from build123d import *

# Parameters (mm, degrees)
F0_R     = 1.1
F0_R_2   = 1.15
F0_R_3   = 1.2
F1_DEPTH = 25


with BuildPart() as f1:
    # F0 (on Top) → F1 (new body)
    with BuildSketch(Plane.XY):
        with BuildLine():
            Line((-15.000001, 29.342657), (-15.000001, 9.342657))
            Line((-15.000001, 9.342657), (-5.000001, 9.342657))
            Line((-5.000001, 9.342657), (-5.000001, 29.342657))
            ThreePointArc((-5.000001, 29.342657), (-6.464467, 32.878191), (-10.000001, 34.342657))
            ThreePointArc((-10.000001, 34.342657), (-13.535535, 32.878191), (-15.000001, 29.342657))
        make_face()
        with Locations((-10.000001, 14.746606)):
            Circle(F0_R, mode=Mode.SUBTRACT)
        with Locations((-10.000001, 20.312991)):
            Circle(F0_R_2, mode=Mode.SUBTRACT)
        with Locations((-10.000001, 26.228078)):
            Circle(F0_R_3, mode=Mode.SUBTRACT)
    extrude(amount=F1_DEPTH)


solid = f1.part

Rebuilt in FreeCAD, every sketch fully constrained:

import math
import FreeCAD as App
import Part
import Sketcher

doc = App.newDocument("Part")
body = doc.addObject("PartDesign::Body", "Body")

sketch1 = body.newObject("Sketcher::SketchObject", "Sketch")
sketch1.AttachmentSupport = (doc.getObject("XY_Plane"), [""])
sketch1.MapMode = "FlatFace"
sketch1.addGeometry(Part.LineSegment(App.Vector(-15.000001, 29.342657, 0), App.Vector(-15.000001, 9.342657, 0)), False)
sketch1.addGeometry(Part.LineSegment(App.Vector(-15.000001, 9.342657, 0), App.Vector(-5.000001, 9.342657, 0)), False)
sketch1.addGeometry(Part.LineSegment(App.Vector(-5.000001, 9.342657, 0), App.Vector(-5.000001, 29.342657, 0)), False)
sketch1.addGeometry(Part.ArcOfCircle(Part.Circle(App.Vector(-10.000001, 29.342657, 0), App.Vector(0, 0, 1), 5), math.radians(-0.000004), math.radians(90.000004)), False)
sketch1.addGeometry(Part.ArcOfCircle(Part.Circle(App.Vector(-10.000001, 29.342657, 0), App.Vector(0, 0, 1), 5), math.radians(89.999996), math.radians(180.000004)), False)
sketch1.addGeometry(Part.Circle(App.Vector(-10.000001, 14.746606, 0), App.Vector(0, 0, 1), 1.1), False)
sketch1.addGeometry(Part.Circle(App.Vector(-10.000001, 20.312991, 0), App.Vector(0, 0, 1), 1.15), False)
sketch1.addGeometry(Part.Circle(App.Vector(-10.000001, 26.228078, 0), App.Vector(0, 0, 1), 1.2), False)
sketch1.addConstraint(Sketcher.Constraint("Coincident", 0, 2, 1, 1))
sketch1.addConstraint(Sketcher.Constraint("Coincident", 1, 2, 2, 1))
sketch1.addConstraint(Sketcher.Constraint("Tangent", 2, 2, 3, 1))
sketch1.addConstraint(Sketcher.Constraint("Tangent", 3, 2, 4, 1))
sketch1.addConstraint(Sketcher.Constraint("Tangent", 4, 2, 0, 1))
sketch1.addConstraint(Sketcher.Constraint("Vertical", 0))
sketch1.addConstraint(Sketcher.Constraint("Horizontal", 1))
sketch1.addConstraint(Sketcher.Constraint("Vertical", 2))
sketch1.addConstraint(Sketcher.Constraint("Equal", 3, 4))
sketch1.addConstraint(Sketcher.Constraint("Vertical", 4, 3, 5, 3))
sketch1.addConstraint(Sketcher.Constraint("Vertical", 5, 3, 6, 3))
sketch1.addConstraint(Sketcher.Constraint("Vertical", 6, 3, 7, 3))
sketch1.addConstraint(Sketcher.Constraint("Vertical", 7, 3, 3, 2))
sketch1.addConstraint(Sketcher.Constraint("Radius", 3, 5.0))
sketch1.addConstraint(Sketcher.Constraint("Diameter", 5, 2.2))
sketch1.addConstraint(Sketcher.Constraint("Diameter", 6, 2.3))
sketch1.addConstraint(Sketcher.Constraint("Diameter", 7, 2.4))
sketch1.addConstraint(Sketcher.Constraint("DistanceY", 0, 2, 0, 1, 20.0))
sketch1.addConstraint(Sketcher.Constraint("DistanceX", 3, 3, -1, 1, 10.000001))
sketch1.addConstraint(Sketcher.Constraint("DistanceY", -1, 1, 6, 3, 20.312991))
sketch1.addConstraint(Sketcher.Constraint("DistanceY", -1, 1, 7, 3, 26.228078))
sketch1.addConstraint(Sketcher.Constraint("DistanceY", 5, 3, 3, 3, 14.596051))
sketch1.addConstraint(Sketcher.Constraint("DistanceY", 7, 3, 3, 3, 3.114579))
pad1 = body.newObject("PartDesign::Pad", "Pad")
pad1.Profile = sketch1
pad1.Length = 25

doc.recompute()
